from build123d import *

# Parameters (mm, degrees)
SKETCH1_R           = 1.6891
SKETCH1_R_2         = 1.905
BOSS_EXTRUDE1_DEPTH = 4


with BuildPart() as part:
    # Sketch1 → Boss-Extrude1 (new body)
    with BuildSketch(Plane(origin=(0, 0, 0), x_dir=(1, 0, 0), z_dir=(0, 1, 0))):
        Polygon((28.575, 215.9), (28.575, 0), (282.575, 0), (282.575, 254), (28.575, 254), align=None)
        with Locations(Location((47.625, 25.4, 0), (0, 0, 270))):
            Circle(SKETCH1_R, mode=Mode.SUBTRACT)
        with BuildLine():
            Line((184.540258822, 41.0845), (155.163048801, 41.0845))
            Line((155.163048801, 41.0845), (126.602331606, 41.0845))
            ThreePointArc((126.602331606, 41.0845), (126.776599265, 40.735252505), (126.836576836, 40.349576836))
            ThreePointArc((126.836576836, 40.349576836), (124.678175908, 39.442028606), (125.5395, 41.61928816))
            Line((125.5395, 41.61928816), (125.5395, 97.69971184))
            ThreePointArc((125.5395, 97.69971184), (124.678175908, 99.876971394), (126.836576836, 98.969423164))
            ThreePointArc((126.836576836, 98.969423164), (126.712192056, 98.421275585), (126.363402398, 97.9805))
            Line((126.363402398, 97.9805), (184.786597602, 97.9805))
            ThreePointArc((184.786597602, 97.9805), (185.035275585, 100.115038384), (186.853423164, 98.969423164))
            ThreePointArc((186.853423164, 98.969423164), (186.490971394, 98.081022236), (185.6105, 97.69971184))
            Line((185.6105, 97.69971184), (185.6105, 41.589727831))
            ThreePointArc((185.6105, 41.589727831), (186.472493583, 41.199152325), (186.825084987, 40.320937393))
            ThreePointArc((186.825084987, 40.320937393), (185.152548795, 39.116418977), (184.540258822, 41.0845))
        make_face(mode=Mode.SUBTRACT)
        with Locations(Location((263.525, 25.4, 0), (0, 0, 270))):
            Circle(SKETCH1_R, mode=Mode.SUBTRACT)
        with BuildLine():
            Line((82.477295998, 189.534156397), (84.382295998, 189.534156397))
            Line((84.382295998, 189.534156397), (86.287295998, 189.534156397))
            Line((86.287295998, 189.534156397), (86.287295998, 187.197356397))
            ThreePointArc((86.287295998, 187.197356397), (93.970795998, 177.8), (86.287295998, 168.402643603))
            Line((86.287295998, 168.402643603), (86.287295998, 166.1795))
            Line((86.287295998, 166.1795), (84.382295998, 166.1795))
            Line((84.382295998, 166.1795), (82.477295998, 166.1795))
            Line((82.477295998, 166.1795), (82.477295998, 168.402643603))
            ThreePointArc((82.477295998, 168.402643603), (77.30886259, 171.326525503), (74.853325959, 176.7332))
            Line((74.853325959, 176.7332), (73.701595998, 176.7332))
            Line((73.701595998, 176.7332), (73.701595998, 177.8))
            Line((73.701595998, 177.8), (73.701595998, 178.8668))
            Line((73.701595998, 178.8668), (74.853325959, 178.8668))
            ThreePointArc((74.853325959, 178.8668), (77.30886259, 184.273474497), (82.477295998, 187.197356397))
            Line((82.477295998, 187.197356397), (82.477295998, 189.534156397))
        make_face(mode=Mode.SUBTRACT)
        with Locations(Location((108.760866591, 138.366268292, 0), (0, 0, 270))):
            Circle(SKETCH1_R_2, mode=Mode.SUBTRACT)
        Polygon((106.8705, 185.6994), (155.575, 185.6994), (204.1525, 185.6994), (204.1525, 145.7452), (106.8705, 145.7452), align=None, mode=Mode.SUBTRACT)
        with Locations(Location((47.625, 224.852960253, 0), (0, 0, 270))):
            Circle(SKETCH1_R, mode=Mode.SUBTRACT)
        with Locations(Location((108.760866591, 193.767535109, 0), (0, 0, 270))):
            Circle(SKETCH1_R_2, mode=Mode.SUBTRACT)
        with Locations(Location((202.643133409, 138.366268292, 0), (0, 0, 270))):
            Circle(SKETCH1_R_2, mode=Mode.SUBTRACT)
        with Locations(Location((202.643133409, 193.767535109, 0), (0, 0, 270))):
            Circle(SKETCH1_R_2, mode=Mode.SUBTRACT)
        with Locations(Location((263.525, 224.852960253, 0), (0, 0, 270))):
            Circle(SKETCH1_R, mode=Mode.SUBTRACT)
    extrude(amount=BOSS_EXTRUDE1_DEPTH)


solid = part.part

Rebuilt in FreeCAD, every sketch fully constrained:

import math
import FreeCAD as App
import Part
import Sketcher
Q = App.Units.Quantity


def add_polygon(sketch, points):
    """Adds a closed chain of lines whose ends are joined by coincident constraints."""
    first, n = sketch.GeometryCount, len(points)
    for a, b in zip(points, points[1:] + points[:1]):
        sketch.addGeometry(Part.LineSegment(App.Vector(*a, 0), App.Vector(*b, 0)), False)
    for i in range(n):
        sketch.addConstraint(Sketcher.Constraint("Coincident", first + i, 2, first + (i + 1) % n, 1))

doc = App.newDocument("Part")
params = doc.addObject("Spreadsheet::Sheet", "Params")
for row, (alias, value) in enumerate([
    ("sketch1_diameter", "0.15 in"),
    ("sketch1_width", "10 in"),
    ("sketch1_radius", "0.05 in"),
    ("sketch1_diameter2", "0.133 in"),
    ("sketch1_width2", "3.83 in"),
    ("pad1_length", "4 mm"),
], start=1):
    params.set(f"A{row}", alias)
    params.set(f"B{row}", "=" + value)
    params.setAlias(f"B{row}", alias)

body = doc.addObject("PartDesign::Body", "Body")

# Sketch on XZ plane
sketch1 = body.newObject("Sketcher::SketchObject", "Sketch")
sketch1.AttachmentSupport = (doc.getObject("XZ_Plane"), [""])
sketch1.MapMode = "FlatFace"
add_polygon(sketch1, [(28.575, 0), (282.575, 0), (282.575, -254), (28.575, -254)])  # lines 0-3
sketch1.addGeometry(Part.Circle(App.Vector(47.625, -25.4, 0), App.Vector(0, 0, 1), 1.6891), False)  # 4
sketch1.addGeometry(Part.ArcOfCircle(Part.Circle(App.Vector(185.555085, -40.320937, 0), App.Vector(0, 0, 1), 1.27), math.radians(0), math.radians(216.958069)), False)  # 5
sketch1.addGeometry(Part.LineSegment(App.Vector(184.540259, -41.0845, 0), App.Vector(126.602332, -41.0845, 0)), False)  # 6
sketch1.addGeometry(Part.ArcOfCircle(Part.Circle(App.Vector(125.566577, -40.349577, 0), App.Vector(0, 0, 1), 1.27), math.radians(-35.35773), math.radians(0)), False)  # 7
sketch1.addGeometry(Part.ArcOfCircle(Part.Circle(App.Vector(125.566577, -40.349577, 0), App.Vector(0, 0, 1), 1.27), math.radians(0), math.radians(268.778342)), False)  # 8
sketch1.addGeometry(Part.LineSegment(App.Vector(125.5395, -41.619288, 0), App.Vector(125.5395, -97.699712, 0)), False)  # 9
sketch1.addGeometry(Part.ArcOfCircle(Part.Circle(App.Vector(125.566577, -98.969423, 0), App.Vector(0, 0, 1), 1.27), math.radians(91.221658), math.radians(360)), False)  # 10
sketch1.addGeometry(Part.ArcOfCircle(Part.Circle(App.Vector(125.566577, -98.969423, 0), App.Vector(0, 0, 1), 1.27), math.radians(0), math.radians(51.139844)), False)  # 11
sketch1.addGeometry(Part.LineSegment(App.Vector(126.363402, -97.9805, 0), App.Vector(184.786598, -97.9805, 0)), False)  # 12
sketch1.addGeometry(Part.ArcOfCircle(Part.Circle(App.Vector(185.583423, -98.969423, 0), App.Vector(0, 0, 1), 1.27), math.radians(128.860156), math.radians(360)), False)  # 13
sketch1.addGeometry(Part.ArcOfCircle(Part.Circle(App.Vector(185.583423, -98.969423, 0), App.Vector(0, 0, 1), 1.27), math.radians(0), math.radians(88.778342)), False)  # 14
sketch1.addGeometry(Part.LineSegment(App.Vector(185.6105, -97.699712, 0), App.Vector(185.6105, -41.589728, 0)), False)  # 15
sketch1.addGeometry(Part.ArcOfCircle(Part.Circle(App.Vector(185.555085, -40.320937, 0), App.Vector(0, 0, 1), 1.27), math.radians(-87.499169), math.radians(0)), False)  # 16
sketch1.addGeometry(Part.Circle(App.Vector(263.525, -25.4, 0), App.Vector(0, 0, 1), 1.6891), False)  # 17
sketch1.addGeometry(Part.Circle(App.Vector(108.760867, -138.366268, 0), App.Vector(0, 0, 1), 1.905), False)  # 18
add_polygon(sketch1, [(106.8705, -145.7452), (106.8705, -185.6994), (204.1525, -185.6994), (204.1525, -145.7452)])  # lines 19-22
sketch1.addGeometry(Part.LineSegment(App.Vector(82.477296, -187.197356, 0), App.Vector(82.477296, -189.534156, 0)), False)  # 23
sketch1.addGeometry(Part.LineSegment(App.Vector(82.477296, -189.534156, 0), App.Vector(86.287296, -189.534156, 0)), False)  # 24
sketch1.addGeometry(Part.LineSegment(App.Vector(86.287296, -189.534156, 0), App.Vector(86.287296, -187.197356, 0)), False)  # 25
sketch1.addGeometry(Part.ArcOfCircle(Part.Circle(App.Vector(84.382296, -177.8, 0), App.Vector(0, 0, 1), 9.5885), math.radians(-78.540484), math.radians(78.540484)), False)  # 26
sketch1.addGeometry(Part.LineSegment(App.Vector(86.287296, -168.402644, 0), App.Vector(86.287296, -166.1795, 0)), False)  # 27
sketch1.addGeometry(Part.LineSegment(App.Vector(86.287296, -166.1795, 0), App.Vector(82.477296, -166.1795, 0)), False)  # 28
sketch1.addGeometry(Part.LineSegment(App.Vector(82.477296, -166.1795, 0), App.Vector(82.477296, -168.402644, 0)), False)  # 29
sketch1.addGeometry(Part.ArcOfCircle(Part.Circle(App.Vector(84.382296, -177.8, 0), App.Vector(0, 0, 1), 9.5885), math.radians(101.459516), math.radians(173.612145)), False)  # 30
sketch1.addGeometry(Part.LineSegment(App.Vector(74.853326, -176.7332, 0), App.Vector(73.701596, -176.7332, 0)), False)  # 31
sketch1.addGeometry(Part.LineSegment(App.Vector(73.701596, -176.7332, 0), App.Vector(73.701596, -178.8668, 0)), False)  # 32
sketch1.addGeometry(Part.LineSegment(App.Vector(73.701596, -178.8668, 0), App.Vector(74.853326, -178.8668, 0)), False)  # 33
sketch1.addGeometry(Part.ArcOfCircle(Part.Circle(App.Vector(84.382296, -177.8, 0), App.Vector(0, 0, 1), 9.5885), math.radians(-173.612145), math.radians(-101.459516)), False)  # 34
sketch1.addGeometry(Part.Circle(App.Vector(47.625, -224.85296, 0), App.Vector(0, 0, 1), 1.6891), False)  # 35
sketch1.addGeometry(Part.Circle(App.Vector(108.760867, -193.767535, 0), App.Vector(0, 0, 1), 1.905), False)  # 36
sketch1.addGeometry(Part.Circle(App.Vector(202.643133, -138.366268, 0), App.Vector(0, 0, 1), 1.905), False)  # 37
sketch1.addGeometry(Part.Circle(App.Vector(202.643133, -193.767535, 0), App.Vector(0, 0, 1), 1.905), False)  # 38
sketch1.addGeometry(Part.Circle(App.Vector(263.525, -224.85296, 0), App.Vector(0, 0, 1), 1.6891), False)  # 39
sketch1.addConstraint([
    Sketcher.Constraint("Coincident", 5, 2, 6, 1),
    Sketcher.Constraint("Coincident", 6, 2, 7, 1),
    Sketcher.Constraint("Tangent", 7, 2, 8, 1),
    Sketcher.Constraint("Coincident", 8, 2, 9, 1),
    Sketcher.Constraint("Coincident", 9, 2, 10, 1),
    Sketcher.Constraint("Tangent", 10, 2, 11, 1),
    Sketcher.Constraint("Coincident", 11, 2, 12, 1),
    Sketcher.Constraint("Coincident", 12, 2, 13, 1),
    Sketcher.Constraint("Tangent", 13, 2, 14, 1),
    Sketcher.Constraint("Coincident", 14, 2, 15, 1),
    Sketcher.Constraint("Coincident", 15, 2, 16, 1),
    Sketcher.Constraint("Tangent", 16, 2, 5, 1),
    Sketcher.Constraint("Coincident", 23, 2, 24, 1),
    Sketcher.Constraint("Coincident", 24, 2, 25, 1),
    Sketcher.Constraint("Coincident", 25, 2, 26, 1),
    Sketcher.Constraint("Coincident", 26, 2, 27, 1),
    Sketcher.Constraint("Coincident", 27, 2, 28, 1),
    Sketcher.Constraint("Coincident", 28, 2, 29, 1),
    Sketcher.Constraint("Coincident", 29, 2, 30, 1),
    Sketcher.Constraint("Coincident", 30, 2, 31, 1),
    Sketcher.Constraint("Coincident", 31, 2, 32, 1),
    Sketcher.Constraint("Coincident", 32, 2, 33, 1),
    Sketcher.Constraint("Coincident", 33, 2, 34, 1),
    Sketcher.Constraint("Coincident", 34, 2, 23, 1),
    Sketcher.Constraint("Horizontal", 0),
    Sketcher.Constraint("Vertical", 1),
    Sketcher.Constraint("Horizontal", 2),
    Sketcher.Constraint("Vertical", 3),
    Sketcher.Constraint("Horizontal", 6),
    Sketcher.Constraint("Vertical", 9),
    Sketcher.Constraint("Horizontal", 12),
    Sketcher.Constraint("Vertical", 15),
    Sketcher.Constraint("Vertical", 19),
    Sketcher.Constraint("Horizontal", 20),
    Sketcher.Constraint("Vertical", 21),
    Sketcher.Constraint("Horizontal", 22),
    Sketcher.Constraint("Vertical", 23),
    Sketcher.Constraint("Horizontal", 24),
    Sketcher.Constraint("Vertical", 25),
    Sketcher.Constraint("Vertical", 27),
    Sketcher.Constraint("Horizontal", 28),
    Sketcher.Constraint("Vertical", 29),
    Sketcher.Constraint("Horizontal", 31),
    Sketcher.Constraint("Vertical", 32),
    Sketcher.Constraint("Horizontal", 33),
    Sketcher.Constraint("Coincident", 30, 3, 26, 3),
    Sketcher.Constraint("Coincident", 34, 3, 26, 3),
    Sketcher.Constraint("Equal", 5, 7),
    Sketcher.Constraint("Equal", 7, 8),
    Sketcher.Constraint("Equal", 8, 10),
    Sketcher.Constraint("Equal", 10, 11),
    Sketcher.Constraint("Equal", 11, 13),
    Sketcher.Constraint("Equal", 13, 14),
    Sketcher.Constraint("Equal", 14, 16),
    Sketcher.Constraint("Equal", 4, 17),
    Sketcher.Constraint("Equal", 26, 30),
    Sketcher.Constraint("Equal", 30, 34),
    Sketcher.Constraint("Equal", 17, 35),
    Sketcher.Constraint("Equal", 18, 36),
    Sketcher.Constraint("Equal", 36, 37),
    Sketcher.Constraint("Equal", 37, 38),
    Sketcher.Constraint("Equal", 35, 39),
    Sketcher.Constraint("PointOnObject", 0, 2, -1),
    Sketcher.Constraint("Horizontal", 11, 3, 13, 3),
    Sketcher.Constraint("Horizontal", 4, 3, 17, 3),
    Sketcher.Constraint("Horizontal", 18, 3, 37, 3),
    Sketcher.Constraint("Horizontal", 36, 3, 38, 3),
    Sketcher.Constraint("Horizontal", 35, 3, 39, 3),
    Sketcher.Constraint("Horizontal", 8, 3, 7, 2),
    Sketcher.Constraint("Horizontal", 14, 3, 10, 2),
    Sketcher.Constraint("Horizontal", 10, 2, 13, 2),
    Sketcher.Constraint("Horizontal", 9, 2, 14, 2),
    Sketcher.Constraint("Horizontal", 5, 3, 16, 2),
    Sketcher.Constraint("Horizontal", 26, 2, 29, 2),
    Sketcher.Constraint("Horizontal", 25, 2, 34, 2),
    Sketcher.Constraint("Vertical", 8, 3, 10, 3),
    Sketcher.Constraint("Vertical", 4, 3, 35, 3),
    Sketcher.Constraint("Vertical", 18, 3, 36, 3),
    Sketcher.Constraint("Vertical", 37, 3, 38, 3),
    Sketcher.Constraint("Vertical", 17, 3, 39, 3),
    Sketcher.Constraint("Vertical", 25, 2, 26, 2),
    Sketcher.Constraint("Vertical", 30, 2, 33, 2),
    Sketcher.Constraint("Equal", 2, 1),
    Sketcher.Constraint("Diameter", 18, Q("0.15 in")),
    Sketcher.Constraint("DistanceX", 0, 1, 0, 2, Q("10 in")),
    Sketcher.Constraint("Radius", 5, Q("0.05 in")),
    Sketcher.Constraint("Diameter", 4, Q("0.133 in")),
    Sketcher.Constraint("DistanceY", 4, 3, -1, 1, Q("1 in")),
    Sketcher.Constraint("DistanceY", 26, 3, -1, 1, Q("7 in")),
    Sketcher.Constraint("DistanceX", 20, 1, 20, 2, Q("3.83 in")),
    Sketcher.Constraint("DistanceX", 24, 1, 24, 2, Q("0.15 in")),
    Sketcher.Constraint("Radius", 26, Q("0.3775 in")),
    Sketcher.Constraint("DistanceY", 19, 2, 19, 1, Q("1.573 in")),
    Sketcher.Constraint("DistanceY", 23, 2, 23, 1, Q("0.092 in")),
    Sketcher.Constraint("DistanceY", 32, 2, 32, 1, Q("0.084 in")),
    Sketcher.Constraint("DistanceX", 17, 3, 0, 2, Q("0.75 in")),
    Sketcher.Constraint("DistanceX", 2, 2, 35, 3, Q("0.75 in")),
    Sketcher.Constraint("DistanceY", 12, 2, 5, 2, Q("2.24 in")),
    Sketcher.Constraint("DistanceX", -1, 1, 4, 3, Q("1.875 in")),
    Sketcher.Constraint("DistanceY", 19, 2, -1, 1, Q("7.311 in")),
    Sketcher.Constraint("DistanceY", 5, 2, -1, 1, Q("1.6175 in")),
    Sketcher.Constraint("DistanceX", -1, 1, 8, 2, Q("4.9425 in")),
    Sketcher.Constraint("DistanceX", -1, 1, 14, 2, Q("7.3075 in")),
    Sketcher.Constraint("DistanceX", -1, 1, 19, 2, Q("4.2075 in")),
    Sketcher.Constraint("DistanceY", 27, 2, -1, 1, Q("6.5425 in")),
    Sketcher.Constraint("DistanceX", 31, 2, 26, 3, Q("0.4205 in")),
    Sketcher.Constraint("DistanceX", 6, 2, 6, 1, 57.937927),
    Sketcher.Constraint("DistanceX", 12, 1, 12, 2, 58.423195),
    Sketcher.Constraint("DistanceY", 9, 2, 9, 1, 56.080424),
    Sketcher.Constraint("DistanceY", 15, 1, 15, 2, 56.109984),
    Sketcher.Constraint("DistanceY", 18, 3, -1, 1, 138.366268),
    Sketcher.Constraint("DistanceY", 35, 3, -1, 1, 224.85296),
    Sketcher.Constraint("DistanceX", -1, 1, 5, 2, 184.540259),
    Sketcher.Constraint("DistanceX", 18, 3, 10, 3, 16.80571),
    Sketcher.Constraint("DistanceX", 26, 3, 18, 3, 24.378571),
    Sketcher.Constraint("DistanceX", 14, 3, 37, 3, 17.05971),
    Sketcher.Constraint("DistanceY", 38, 3, 14, 3, 94.798112),
])
sketch1.setExpression("Constraints[91]", "Params.sketch1_diameter")
sketch1.setExpression("Constraints[92]", "Params.sketch1_width")
sketch1.setExpression("Constraints[93]", "Params.sketch1_radius")
sketch1.setExpression("Constraints[94]", "Params.sketch1_diameter2")
sketch1.setExpression("Constraints[97]", "Params.sketch1_width2")
pad1 = body.newObject("PartDesign::Pad", "Pad")
pad1.Profile = sketch1
pad1.setExpression("Length", "Params.pad1_length")
pad1.Reversed = True

doc.recompute()
